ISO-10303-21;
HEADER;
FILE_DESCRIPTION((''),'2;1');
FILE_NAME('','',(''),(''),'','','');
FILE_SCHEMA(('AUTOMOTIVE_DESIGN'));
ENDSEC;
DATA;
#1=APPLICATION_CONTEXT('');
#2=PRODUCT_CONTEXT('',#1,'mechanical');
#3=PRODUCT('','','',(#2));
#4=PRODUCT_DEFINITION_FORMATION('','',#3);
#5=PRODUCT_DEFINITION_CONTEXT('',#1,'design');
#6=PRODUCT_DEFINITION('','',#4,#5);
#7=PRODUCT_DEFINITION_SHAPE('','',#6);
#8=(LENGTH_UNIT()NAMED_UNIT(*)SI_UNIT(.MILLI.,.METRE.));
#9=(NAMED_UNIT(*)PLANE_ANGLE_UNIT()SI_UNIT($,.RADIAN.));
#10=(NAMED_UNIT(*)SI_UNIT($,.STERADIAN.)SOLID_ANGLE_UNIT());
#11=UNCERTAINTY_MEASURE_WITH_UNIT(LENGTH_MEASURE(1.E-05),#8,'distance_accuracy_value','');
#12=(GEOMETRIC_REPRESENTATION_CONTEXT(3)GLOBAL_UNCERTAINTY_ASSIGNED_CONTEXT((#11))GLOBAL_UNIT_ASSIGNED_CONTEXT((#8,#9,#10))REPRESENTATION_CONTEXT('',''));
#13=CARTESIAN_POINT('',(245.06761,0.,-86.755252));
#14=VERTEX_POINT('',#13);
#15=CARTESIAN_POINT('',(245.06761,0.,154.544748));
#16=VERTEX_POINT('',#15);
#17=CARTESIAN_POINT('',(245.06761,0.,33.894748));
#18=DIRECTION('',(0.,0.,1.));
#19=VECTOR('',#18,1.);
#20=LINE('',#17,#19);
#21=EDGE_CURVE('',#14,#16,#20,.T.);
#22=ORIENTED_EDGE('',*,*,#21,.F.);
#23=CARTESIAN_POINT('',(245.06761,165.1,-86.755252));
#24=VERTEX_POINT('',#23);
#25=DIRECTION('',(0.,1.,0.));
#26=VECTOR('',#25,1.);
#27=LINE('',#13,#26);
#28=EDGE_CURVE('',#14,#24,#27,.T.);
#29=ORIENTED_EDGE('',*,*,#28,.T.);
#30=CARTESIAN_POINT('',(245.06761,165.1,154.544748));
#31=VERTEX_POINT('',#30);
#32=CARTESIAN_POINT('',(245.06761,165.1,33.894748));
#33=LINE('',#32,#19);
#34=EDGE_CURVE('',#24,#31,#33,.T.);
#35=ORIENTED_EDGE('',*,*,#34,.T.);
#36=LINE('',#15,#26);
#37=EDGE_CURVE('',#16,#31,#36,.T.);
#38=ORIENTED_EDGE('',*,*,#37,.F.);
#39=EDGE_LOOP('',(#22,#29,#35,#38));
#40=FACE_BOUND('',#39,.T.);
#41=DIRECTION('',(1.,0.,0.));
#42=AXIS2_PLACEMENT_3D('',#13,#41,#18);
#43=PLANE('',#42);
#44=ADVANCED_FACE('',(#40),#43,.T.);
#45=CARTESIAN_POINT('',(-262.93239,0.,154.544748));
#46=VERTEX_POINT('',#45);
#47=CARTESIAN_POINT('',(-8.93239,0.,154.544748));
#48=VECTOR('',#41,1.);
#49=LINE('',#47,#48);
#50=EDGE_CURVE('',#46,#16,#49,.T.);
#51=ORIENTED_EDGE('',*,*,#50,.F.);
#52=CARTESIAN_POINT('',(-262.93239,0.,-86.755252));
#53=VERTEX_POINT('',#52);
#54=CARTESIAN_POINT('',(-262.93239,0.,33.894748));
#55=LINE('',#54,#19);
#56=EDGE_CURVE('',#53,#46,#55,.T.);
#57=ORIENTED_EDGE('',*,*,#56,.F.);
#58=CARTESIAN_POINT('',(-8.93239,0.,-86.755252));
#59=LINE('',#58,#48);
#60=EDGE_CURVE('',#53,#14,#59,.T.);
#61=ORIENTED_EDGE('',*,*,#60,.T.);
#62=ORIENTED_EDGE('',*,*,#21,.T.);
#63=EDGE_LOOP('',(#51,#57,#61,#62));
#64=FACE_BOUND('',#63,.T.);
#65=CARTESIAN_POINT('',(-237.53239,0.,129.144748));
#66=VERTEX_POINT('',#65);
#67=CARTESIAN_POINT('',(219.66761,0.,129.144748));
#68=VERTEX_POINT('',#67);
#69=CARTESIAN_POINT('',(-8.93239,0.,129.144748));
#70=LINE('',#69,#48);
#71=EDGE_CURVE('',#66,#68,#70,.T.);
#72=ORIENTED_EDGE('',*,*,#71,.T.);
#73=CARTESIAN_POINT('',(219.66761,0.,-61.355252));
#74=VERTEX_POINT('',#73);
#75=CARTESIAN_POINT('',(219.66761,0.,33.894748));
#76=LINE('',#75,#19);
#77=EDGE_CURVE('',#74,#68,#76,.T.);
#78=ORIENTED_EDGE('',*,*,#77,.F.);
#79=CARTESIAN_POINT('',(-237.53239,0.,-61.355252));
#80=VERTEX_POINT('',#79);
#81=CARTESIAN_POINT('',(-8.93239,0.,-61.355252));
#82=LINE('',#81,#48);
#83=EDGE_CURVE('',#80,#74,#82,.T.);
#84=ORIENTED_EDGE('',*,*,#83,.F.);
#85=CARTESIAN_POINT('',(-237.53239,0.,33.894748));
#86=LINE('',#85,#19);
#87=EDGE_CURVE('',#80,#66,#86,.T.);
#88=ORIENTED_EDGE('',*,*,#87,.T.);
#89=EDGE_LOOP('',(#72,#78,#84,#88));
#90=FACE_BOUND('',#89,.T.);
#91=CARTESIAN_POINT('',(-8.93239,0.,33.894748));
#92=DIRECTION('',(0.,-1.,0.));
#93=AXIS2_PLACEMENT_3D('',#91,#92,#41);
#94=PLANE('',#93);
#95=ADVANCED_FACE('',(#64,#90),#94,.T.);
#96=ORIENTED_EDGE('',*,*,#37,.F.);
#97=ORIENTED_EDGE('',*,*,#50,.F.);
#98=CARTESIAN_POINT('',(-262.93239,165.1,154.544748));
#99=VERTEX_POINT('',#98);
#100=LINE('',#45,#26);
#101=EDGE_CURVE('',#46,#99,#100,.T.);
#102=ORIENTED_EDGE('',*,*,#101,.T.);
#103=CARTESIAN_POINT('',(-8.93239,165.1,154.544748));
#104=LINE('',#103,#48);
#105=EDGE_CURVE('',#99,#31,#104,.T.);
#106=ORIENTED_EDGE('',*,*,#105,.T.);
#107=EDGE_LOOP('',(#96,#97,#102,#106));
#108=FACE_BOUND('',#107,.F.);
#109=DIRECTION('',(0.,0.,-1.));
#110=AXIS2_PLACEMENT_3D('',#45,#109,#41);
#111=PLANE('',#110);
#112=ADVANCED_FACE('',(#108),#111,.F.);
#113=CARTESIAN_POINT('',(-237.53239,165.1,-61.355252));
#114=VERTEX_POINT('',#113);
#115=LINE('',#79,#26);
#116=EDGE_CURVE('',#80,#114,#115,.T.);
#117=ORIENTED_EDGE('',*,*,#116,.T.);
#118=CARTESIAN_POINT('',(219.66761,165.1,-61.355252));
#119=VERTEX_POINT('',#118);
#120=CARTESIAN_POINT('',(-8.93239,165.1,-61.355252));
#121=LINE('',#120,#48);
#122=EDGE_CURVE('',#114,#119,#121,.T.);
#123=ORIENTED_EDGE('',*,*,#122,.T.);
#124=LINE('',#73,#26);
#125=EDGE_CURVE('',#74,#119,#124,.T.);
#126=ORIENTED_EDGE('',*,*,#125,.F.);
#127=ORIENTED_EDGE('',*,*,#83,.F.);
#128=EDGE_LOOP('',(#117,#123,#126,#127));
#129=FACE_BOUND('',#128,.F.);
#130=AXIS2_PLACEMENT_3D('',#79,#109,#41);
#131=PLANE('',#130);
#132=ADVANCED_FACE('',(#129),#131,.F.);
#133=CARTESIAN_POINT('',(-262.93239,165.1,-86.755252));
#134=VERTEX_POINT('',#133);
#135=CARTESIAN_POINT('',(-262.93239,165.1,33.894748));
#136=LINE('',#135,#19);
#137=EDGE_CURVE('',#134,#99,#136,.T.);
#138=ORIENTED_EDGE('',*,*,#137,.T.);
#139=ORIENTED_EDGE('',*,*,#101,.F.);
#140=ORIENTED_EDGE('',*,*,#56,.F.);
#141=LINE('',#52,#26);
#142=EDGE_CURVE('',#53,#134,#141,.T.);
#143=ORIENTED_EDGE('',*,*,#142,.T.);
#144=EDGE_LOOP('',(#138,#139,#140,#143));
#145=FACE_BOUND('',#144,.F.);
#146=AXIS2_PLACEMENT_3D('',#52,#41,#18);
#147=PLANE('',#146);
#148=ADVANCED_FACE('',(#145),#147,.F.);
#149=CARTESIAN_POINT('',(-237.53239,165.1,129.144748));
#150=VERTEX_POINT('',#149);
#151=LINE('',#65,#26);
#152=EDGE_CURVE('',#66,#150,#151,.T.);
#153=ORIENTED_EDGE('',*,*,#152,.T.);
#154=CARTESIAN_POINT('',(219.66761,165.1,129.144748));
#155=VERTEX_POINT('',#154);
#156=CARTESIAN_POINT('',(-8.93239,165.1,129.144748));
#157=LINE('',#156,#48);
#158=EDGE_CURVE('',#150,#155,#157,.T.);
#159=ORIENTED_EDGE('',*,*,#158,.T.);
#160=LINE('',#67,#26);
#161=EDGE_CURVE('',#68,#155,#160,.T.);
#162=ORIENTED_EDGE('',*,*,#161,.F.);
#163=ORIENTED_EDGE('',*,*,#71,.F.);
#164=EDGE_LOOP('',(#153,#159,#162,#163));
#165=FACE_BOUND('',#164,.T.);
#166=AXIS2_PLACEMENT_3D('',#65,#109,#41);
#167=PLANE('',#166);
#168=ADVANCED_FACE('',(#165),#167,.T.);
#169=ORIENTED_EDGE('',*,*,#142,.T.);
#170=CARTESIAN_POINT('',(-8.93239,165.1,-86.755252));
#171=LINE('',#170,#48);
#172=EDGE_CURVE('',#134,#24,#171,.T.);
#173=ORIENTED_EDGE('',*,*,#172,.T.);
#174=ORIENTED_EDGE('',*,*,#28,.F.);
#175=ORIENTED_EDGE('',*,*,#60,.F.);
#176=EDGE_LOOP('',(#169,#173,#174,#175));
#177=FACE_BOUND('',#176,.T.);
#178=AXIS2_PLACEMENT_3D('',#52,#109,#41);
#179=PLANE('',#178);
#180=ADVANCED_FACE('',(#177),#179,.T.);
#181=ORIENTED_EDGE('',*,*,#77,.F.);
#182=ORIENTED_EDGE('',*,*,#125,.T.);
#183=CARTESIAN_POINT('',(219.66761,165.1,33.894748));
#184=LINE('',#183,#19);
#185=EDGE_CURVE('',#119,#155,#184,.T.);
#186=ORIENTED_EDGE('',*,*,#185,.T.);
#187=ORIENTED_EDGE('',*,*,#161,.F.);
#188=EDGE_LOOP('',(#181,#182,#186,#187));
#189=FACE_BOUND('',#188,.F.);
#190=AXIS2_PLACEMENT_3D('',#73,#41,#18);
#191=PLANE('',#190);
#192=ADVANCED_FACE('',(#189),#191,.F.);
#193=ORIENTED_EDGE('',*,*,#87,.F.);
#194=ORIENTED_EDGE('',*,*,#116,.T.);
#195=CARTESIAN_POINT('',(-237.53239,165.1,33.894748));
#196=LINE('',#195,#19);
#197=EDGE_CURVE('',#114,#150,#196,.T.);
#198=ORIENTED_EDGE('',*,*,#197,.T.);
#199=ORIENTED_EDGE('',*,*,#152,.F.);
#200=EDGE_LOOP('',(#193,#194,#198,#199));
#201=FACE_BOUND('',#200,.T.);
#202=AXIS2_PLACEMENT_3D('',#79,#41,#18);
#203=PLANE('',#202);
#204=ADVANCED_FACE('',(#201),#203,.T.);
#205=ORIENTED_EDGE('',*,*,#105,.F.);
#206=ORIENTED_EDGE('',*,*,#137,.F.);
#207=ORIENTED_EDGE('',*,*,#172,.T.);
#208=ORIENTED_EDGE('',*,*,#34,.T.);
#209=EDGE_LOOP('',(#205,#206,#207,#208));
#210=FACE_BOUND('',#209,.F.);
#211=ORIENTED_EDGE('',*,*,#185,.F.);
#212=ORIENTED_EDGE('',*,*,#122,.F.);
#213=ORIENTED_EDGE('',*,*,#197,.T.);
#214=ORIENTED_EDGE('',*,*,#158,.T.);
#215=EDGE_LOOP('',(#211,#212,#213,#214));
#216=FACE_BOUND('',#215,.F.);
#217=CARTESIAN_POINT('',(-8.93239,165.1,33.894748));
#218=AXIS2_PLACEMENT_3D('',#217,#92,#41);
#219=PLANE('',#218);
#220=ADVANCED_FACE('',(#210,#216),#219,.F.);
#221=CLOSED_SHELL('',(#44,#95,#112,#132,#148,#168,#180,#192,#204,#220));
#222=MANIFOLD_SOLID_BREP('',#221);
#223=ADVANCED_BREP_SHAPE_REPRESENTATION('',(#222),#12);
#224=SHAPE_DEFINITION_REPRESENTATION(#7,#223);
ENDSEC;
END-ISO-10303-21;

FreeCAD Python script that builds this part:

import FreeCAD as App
import Part
import Sketcher

V = App.Vector
Q = App.Units.Quantity

doc = App.newDocument("Part")
body = doc.addObject("PartDesign::Body", "Body")

sketch1 = body.newObject("Sketcher::SketchObject", "Sketch")
sketch1.AttachmentSupport = (doc.getObject("XZ_Plane"), [""])
sketch1.MapMode = "FlatFace"
sketch1.addGeometry([
    Part.LineSegment(V(-263, 155, 0), V(-263, -87, 0)),
    Part.LineSegment(V(-263, -87, 0), V(245, -87, 0)),
    Part.LineSegment(V(245, -87, 0), V(245, 155, 0)),
    Part.LineSegment(V(245, 155, 0), V(-263, 155, 0)),
    Part.LineSegment(V(220, -61, 0), V(-238, -61, 0)),
    Part.LineSegment(V(-238, -61, 0), V(-238, 129, 0)),
    Part.LineSegment(V(-238, 129, 0), V(220, 129, 0)),
    Part.LineSegment(V(220, 129, 0), V(220, -61, 0)),
], False)
sketch1.addConstraint([
    Sketcher.Constraint("Coincident", 0, 2, 1, 1),
    Sketcher.Constraint("Coincident", 1, 2, 2, 1),
    Sketcher.Constraint("Coincident", 2, 2, 3, 1),
    Sketcher.Constraint("Coincident", 3, 2, 0, 1),
    Sketcher.Constraint("Coincident", 4, 2, 5, 1),
    Sketcher.Constraint("Coincident", 5, 2, 6, 1),
    Sketcher.Constraint("Coincident", 6, 2, 7, 1),
    Sketcher.Constraint("Coincident", 7, 2, 4, 1),
    Sketcher.Constraint("Vertical", 0),
    Sketcher.Constraint("Horizontal", 1),
    Sketcher.Constraint("Vertical", 2),
    Sketcher.Constraint("Horizontal", 3),
    Sketcher.Constraint("Horizontal", 4),
    Sketcher.Constraint("Vertical", 5),
    Sketcher.Constraint("Horizontal", 6),
    Sketcher.Constraint("Vertical", 7),
    Sketcher.Constraint("DistanceX", 1, 1, 1, 2, Q("20 in")),
    Sketcher.Constraint("DistanceX", 4, 2, 4, 1, Q("18 in")),
    Sketcher.Constraint("DistanceY", 0, 2, 0, 1, Q("9.5 in")),
    Sketcher.Constraint("DistanceY", 5, 1, 5, 2, Q("7.5 in")),
    Sketcher.Constraint("DistanceX", 0, 2, 4, 2, Q("1 in")),
    Sketcher.Constraint("DistanceY", 0, 2, 4, 2, Q("1 in")),
    Sketcher.Constraint("DistanceX", 0, 2, -1, 1, 262.93239),
    Sketcher.Constraint("DistanceY", 0, 2, -1, 1, 86.755252),
])
pad1 = body.newObject("PartDesign::Pad", "Pad")
pad1.Profile = sketch1
pad1.Length = Q("6.5 in")
pad1.Reversed = True

doc.recompute()
